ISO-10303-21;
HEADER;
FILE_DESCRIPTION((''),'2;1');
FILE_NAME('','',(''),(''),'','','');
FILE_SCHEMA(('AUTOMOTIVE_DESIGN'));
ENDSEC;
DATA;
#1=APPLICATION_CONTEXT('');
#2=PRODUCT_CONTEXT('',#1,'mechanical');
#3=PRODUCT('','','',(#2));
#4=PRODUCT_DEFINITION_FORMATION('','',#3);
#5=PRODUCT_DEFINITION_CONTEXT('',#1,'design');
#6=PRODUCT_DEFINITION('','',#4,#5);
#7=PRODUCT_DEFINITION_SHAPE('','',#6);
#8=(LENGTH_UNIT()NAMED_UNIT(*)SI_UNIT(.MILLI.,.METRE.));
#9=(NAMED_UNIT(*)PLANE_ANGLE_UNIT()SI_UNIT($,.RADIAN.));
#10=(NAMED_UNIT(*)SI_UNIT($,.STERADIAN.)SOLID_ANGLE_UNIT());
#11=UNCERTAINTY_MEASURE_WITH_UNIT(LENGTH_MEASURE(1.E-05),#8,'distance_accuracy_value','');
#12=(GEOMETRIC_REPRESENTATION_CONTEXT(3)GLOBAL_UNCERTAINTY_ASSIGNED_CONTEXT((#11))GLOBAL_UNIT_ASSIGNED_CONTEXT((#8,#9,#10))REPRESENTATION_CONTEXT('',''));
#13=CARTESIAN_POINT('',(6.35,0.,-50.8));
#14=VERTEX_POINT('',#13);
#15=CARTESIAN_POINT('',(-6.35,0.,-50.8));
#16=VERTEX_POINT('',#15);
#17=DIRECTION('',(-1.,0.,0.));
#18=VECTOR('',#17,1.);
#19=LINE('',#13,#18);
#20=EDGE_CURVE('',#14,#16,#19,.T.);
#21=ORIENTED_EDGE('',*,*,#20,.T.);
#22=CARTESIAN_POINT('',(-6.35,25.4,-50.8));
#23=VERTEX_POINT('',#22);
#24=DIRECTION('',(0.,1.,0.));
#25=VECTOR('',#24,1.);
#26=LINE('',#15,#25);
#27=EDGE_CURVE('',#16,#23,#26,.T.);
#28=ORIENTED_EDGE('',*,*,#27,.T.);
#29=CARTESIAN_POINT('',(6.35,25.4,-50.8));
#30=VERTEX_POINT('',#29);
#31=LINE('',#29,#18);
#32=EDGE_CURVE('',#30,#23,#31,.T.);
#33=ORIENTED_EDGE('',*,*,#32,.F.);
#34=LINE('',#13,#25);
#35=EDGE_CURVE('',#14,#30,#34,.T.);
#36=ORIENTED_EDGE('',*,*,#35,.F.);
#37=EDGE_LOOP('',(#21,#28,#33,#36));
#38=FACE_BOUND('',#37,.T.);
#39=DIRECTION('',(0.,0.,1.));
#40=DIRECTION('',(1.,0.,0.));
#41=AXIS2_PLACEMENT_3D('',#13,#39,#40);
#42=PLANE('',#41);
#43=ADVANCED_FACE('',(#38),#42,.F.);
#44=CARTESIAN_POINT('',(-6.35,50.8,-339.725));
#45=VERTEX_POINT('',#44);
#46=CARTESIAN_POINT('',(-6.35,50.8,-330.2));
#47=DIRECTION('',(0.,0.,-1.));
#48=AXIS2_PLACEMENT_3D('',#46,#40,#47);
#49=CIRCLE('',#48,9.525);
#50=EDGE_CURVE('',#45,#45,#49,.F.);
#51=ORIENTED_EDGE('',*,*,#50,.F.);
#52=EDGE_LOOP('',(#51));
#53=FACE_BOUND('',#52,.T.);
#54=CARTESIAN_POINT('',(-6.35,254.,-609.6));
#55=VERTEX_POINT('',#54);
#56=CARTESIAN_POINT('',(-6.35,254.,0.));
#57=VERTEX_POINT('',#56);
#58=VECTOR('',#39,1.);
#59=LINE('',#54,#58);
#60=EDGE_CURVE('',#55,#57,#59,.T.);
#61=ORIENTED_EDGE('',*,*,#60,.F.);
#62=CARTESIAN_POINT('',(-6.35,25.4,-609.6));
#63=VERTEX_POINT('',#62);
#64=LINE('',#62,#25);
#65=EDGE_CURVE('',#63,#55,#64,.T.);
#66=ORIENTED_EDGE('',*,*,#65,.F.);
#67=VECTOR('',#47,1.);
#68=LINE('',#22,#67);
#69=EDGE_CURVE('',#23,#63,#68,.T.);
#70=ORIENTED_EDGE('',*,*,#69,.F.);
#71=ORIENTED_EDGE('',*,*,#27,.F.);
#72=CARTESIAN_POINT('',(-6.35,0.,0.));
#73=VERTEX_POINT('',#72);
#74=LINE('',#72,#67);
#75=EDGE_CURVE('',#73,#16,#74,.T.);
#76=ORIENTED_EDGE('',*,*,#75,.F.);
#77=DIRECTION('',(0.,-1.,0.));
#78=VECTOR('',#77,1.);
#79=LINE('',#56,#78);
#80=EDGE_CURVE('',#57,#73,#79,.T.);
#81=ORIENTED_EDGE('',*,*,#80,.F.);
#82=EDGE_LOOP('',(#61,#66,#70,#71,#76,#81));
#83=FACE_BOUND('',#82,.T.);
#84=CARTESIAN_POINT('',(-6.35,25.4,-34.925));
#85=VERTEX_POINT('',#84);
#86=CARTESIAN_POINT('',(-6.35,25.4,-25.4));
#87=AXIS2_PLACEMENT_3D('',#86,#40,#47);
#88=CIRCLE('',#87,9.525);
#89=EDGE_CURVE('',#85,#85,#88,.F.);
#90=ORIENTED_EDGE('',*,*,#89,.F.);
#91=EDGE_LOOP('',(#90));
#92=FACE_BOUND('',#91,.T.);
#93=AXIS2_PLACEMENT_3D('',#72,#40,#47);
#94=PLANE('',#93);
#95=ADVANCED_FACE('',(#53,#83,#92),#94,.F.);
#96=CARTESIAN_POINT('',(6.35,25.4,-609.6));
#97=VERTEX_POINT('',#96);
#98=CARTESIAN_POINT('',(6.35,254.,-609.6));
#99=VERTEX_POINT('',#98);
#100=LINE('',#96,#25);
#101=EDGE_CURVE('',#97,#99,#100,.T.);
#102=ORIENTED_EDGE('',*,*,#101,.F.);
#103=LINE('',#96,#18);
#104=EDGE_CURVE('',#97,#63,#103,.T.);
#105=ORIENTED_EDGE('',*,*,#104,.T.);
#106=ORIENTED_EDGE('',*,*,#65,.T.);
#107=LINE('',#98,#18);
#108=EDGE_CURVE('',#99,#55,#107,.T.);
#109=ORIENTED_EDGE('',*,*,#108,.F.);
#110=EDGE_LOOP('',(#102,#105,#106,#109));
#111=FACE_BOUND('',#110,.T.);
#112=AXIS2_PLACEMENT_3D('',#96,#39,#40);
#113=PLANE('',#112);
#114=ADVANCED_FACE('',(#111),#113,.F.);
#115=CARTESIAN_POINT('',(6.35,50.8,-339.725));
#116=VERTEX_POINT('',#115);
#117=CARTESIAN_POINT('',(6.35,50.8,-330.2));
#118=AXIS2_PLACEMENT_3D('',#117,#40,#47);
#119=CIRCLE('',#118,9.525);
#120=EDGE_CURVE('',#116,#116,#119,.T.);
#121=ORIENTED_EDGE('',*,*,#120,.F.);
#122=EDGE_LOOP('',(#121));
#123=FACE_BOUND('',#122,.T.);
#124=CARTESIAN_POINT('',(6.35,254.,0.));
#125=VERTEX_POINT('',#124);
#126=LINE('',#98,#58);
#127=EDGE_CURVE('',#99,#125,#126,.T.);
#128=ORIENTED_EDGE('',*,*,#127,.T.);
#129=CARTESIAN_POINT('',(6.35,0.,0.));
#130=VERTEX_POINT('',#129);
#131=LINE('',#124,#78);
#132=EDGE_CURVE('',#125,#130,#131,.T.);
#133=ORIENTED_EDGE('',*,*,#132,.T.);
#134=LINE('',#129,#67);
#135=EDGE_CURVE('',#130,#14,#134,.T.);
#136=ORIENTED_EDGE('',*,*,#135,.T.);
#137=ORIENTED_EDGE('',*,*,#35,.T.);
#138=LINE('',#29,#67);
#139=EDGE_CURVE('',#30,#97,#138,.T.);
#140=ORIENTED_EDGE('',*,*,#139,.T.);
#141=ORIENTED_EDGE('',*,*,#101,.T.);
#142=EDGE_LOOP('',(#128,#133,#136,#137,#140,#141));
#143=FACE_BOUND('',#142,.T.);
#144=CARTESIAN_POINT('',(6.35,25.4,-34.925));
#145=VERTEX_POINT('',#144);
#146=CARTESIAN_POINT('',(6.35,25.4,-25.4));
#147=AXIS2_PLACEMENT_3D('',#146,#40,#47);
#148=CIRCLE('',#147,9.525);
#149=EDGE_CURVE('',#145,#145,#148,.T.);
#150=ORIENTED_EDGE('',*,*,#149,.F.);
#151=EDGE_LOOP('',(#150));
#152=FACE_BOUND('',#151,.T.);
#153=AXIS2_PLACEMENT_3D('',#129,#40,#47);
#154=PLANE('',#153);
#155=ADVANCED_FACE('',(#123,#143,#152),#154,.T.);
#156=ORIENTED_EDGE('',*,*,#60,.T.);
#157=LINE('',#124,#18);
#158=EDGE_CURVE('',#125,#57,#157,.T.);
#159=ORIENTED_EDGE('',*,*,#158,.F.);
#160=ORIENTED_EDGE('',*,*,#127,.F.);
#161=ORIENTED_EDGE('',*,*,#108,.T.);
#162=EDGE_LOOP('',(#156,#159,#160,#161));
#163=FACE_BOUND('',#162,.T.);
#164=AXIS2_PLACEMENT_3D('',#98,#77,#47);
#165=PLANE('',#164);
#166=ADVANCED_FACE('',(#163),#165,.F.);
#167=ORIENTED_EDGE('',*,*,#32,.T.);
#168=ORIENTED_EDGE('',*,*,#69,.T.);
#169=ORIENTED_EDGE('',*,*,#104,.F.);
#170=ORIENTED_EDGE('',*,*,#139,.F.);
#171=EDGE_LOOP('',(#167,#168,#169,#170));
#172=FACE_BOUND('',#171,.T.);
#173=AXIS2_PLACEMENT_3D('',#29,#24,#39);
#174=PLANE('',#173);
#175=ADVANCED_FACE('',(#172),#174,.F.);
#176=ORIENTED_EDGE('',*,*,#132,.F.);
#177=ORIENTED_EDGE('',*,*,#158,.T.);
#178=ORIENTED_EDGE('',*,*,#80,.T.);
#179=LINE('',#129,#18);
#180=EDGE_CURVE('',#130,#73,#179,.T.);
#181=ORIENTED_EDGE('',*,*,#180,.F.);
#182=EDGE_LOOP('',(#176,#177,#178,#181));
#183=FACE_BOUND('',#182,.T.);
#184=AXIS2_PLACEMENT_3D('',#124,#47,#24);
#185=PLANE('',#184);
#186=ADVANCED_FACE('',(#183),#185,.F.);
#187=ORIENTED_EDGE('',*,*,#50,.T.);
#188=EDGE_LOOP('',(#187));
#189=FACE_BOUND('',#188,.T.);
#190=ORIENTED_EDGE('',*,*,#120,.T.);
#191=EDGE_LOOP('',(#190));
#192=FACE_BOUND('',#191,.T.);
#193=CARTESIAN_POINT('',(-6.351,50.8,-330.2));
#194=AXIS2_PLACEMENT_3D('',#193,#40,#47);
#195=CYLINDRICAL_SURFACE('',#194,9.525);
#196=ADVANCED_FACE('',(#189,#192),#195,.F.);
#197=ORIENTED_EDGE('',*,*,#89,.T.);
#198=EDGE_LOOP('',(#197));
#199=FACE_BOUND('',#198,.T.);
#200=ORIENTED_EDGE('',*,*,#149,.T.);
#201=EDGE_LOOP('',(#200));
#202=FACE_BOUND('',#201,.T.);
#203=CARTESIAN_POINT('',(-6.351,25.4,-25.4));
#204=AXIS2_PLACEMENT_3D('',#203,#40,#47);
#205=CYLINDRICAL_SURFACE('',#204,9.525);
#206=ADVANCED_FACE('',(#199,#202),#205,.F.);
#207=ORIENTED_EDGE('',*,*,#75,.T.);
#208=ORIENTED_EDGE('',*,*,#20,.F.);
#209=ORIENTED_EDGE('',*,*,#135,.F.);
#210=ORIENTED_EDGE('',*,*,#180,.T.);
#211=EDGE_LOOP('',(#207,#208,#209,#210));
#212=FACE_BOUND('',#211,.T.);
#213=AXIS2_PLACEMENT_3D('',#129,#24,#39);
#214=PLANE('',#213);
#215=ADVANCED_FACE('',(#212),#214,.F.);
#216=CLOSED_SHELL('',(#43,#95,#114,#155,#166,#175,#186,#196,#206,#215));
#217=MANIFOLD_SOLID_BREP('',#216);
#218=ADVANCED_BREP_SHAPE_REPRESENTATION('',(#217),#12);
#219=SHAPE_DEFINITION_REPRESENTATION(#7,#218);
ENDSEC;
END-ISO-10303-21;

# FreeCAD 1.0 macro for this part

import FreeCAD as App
import Part
import Sketcher
from FreeCAD import Vector
Q = App.Units.Quantity

doc = App.newDocument("Part")
body = doc.addObject("PartDesign::Body", "Body")

sketch1 = body.newObject("Sketcher::SketchObject", "Sketch")
sketch1.AttachmentSupport = (doc.getObject("YZ_Plane"), [""])
sketch1.MapMode = "FlatFace"
sketch1.addGeometry([
    Part.LineSegment(Vector(0, 0, 0), Vector(0, -51, 0)),
    Part.LineSegment(Vector(0, -51, 0), Vector(25, -51, 0)),
    Part.LineSegment(Vector(25, -51, 0), Vector(25, -610, 0)),
    Part.LineSegment(Vector(25, -610, 0), Vector(254, -610, 0)),
    Part.LineSegment(Vector(254, -610, 0), Vector(254, 0, 0)),
    Part.LineSegment(Vector(254, 0, 0), Vector(0, 0, 0)),
], False)
sketch1.addConstraint([
    Sketcher.Constraint("Coincident", 0, 2, 1, 1),
    Sketcher.Constraint("Coincident", 1, 2, 2, 1),
    Sketcher.Constraint("Coincident", 2, 2, 3, 1),
    Sketcher.Constraint("Coincident", 3, 2, 4, 1),
    Sketcher.Constraint("Coincident", 4, 2, 5, 1),
    Sketcher.Constraint("Coincident", 5, 2, 0, 1),
    Sketcher.Constraint("Vertical", 0),
    Sketcher.Constraint("Horizontal", 1),
    Sketcher.Constraint("Vertical", 2),
    Sketcher.Constraint("Horizontal", 3),
    Sketcher.Constraint("Vertical", 4),
    Sketcher.Constraint("Horizontal", 5),
    Sketcher.Constraint("Coincident", 5, 2, -1, 1),
    Sketcher.Constraint("DistanceX", 1, 1, 1, 2, Q("1 in")),
    Sketcher.Constraint("DistanceX", 3, 1, 3, 2, Q("9 in")),
    Sketcher.Constraint("DistanceY", 0, 2, 0, 1, Q("2 in")),
    Sketcher.Constraint("DistanceY", 2, 2, 2, 1, Q("22 in")),
])
pad1 = body.newObject("PartDesign::Pad", "Pad")
pad1.Profile = sketch1
pad1.Length = Q("0.5 in")
pad1.Midplane = True

sketch2 = body.newObject("Sketcher::SketchObject", "Sketch001")
sketch2.AttachmentSupport = (doc.getObject("YZ_Plane"), [""])
sketch2.MapMode = "FlatFace"
sketch2.AttachmentOffset = App.Placement(Vector(0, 0, 0.25 * 25.4), App.Rotation())
sketch2.addGeometry(Part.Circle(Vector(25, -25, 0), Vector(0, 0, 1), 10), False)
sketch2.addConstraint([
    Sketcher.Constraint("Diameter", 0, Q("0.75 in")),
    Sketcher.Constraint("DistanceX", -1, 1, 0, 3, Q("1 in")),
    Sketcher.Constraint("DistanceY", 0, 3, -1, 1, Q("1 in")),
])
pocket1 = body.newObject("PartDesign::Pocket", "Pocket")
pocket1.Profile = sketch2
pocket1.Type = "UpToFirst"

sketch3 = body.newObject("Sketcher::SketchObject", "Sketch002")
sketch3.AttachmentSupport = (doc.getObject("YZ_Plane"), [""])
sketch3.MapMode = "FlatFace"
sketch3.AttachmentOffset = App.Placement(Vector(0, 0, 0.25 * 25.4), App.Rotation())
sketch3.addGeometry(Part.Circle(Vector(51, -330, 0), Vector(0, 0, 1), 10), False)
sketch3.addConstraint([
    Sketcher.Constraint("Diameter", 0, Q("0.75 in")),
    Sketcher.Constraint("DistanceX", -1, 1, 0, 3, Q("2 in")),
    Sketcher.Constraint("DistanceY", 0, 3, -1, 1, Q("13 in")),
])
pocket2 = body.newObject("PartDesign::Pocket", "Pocket001")
pocket2.Profile = sketch3
pocket2.Type = "UpToFirst"

doc.recompute()
